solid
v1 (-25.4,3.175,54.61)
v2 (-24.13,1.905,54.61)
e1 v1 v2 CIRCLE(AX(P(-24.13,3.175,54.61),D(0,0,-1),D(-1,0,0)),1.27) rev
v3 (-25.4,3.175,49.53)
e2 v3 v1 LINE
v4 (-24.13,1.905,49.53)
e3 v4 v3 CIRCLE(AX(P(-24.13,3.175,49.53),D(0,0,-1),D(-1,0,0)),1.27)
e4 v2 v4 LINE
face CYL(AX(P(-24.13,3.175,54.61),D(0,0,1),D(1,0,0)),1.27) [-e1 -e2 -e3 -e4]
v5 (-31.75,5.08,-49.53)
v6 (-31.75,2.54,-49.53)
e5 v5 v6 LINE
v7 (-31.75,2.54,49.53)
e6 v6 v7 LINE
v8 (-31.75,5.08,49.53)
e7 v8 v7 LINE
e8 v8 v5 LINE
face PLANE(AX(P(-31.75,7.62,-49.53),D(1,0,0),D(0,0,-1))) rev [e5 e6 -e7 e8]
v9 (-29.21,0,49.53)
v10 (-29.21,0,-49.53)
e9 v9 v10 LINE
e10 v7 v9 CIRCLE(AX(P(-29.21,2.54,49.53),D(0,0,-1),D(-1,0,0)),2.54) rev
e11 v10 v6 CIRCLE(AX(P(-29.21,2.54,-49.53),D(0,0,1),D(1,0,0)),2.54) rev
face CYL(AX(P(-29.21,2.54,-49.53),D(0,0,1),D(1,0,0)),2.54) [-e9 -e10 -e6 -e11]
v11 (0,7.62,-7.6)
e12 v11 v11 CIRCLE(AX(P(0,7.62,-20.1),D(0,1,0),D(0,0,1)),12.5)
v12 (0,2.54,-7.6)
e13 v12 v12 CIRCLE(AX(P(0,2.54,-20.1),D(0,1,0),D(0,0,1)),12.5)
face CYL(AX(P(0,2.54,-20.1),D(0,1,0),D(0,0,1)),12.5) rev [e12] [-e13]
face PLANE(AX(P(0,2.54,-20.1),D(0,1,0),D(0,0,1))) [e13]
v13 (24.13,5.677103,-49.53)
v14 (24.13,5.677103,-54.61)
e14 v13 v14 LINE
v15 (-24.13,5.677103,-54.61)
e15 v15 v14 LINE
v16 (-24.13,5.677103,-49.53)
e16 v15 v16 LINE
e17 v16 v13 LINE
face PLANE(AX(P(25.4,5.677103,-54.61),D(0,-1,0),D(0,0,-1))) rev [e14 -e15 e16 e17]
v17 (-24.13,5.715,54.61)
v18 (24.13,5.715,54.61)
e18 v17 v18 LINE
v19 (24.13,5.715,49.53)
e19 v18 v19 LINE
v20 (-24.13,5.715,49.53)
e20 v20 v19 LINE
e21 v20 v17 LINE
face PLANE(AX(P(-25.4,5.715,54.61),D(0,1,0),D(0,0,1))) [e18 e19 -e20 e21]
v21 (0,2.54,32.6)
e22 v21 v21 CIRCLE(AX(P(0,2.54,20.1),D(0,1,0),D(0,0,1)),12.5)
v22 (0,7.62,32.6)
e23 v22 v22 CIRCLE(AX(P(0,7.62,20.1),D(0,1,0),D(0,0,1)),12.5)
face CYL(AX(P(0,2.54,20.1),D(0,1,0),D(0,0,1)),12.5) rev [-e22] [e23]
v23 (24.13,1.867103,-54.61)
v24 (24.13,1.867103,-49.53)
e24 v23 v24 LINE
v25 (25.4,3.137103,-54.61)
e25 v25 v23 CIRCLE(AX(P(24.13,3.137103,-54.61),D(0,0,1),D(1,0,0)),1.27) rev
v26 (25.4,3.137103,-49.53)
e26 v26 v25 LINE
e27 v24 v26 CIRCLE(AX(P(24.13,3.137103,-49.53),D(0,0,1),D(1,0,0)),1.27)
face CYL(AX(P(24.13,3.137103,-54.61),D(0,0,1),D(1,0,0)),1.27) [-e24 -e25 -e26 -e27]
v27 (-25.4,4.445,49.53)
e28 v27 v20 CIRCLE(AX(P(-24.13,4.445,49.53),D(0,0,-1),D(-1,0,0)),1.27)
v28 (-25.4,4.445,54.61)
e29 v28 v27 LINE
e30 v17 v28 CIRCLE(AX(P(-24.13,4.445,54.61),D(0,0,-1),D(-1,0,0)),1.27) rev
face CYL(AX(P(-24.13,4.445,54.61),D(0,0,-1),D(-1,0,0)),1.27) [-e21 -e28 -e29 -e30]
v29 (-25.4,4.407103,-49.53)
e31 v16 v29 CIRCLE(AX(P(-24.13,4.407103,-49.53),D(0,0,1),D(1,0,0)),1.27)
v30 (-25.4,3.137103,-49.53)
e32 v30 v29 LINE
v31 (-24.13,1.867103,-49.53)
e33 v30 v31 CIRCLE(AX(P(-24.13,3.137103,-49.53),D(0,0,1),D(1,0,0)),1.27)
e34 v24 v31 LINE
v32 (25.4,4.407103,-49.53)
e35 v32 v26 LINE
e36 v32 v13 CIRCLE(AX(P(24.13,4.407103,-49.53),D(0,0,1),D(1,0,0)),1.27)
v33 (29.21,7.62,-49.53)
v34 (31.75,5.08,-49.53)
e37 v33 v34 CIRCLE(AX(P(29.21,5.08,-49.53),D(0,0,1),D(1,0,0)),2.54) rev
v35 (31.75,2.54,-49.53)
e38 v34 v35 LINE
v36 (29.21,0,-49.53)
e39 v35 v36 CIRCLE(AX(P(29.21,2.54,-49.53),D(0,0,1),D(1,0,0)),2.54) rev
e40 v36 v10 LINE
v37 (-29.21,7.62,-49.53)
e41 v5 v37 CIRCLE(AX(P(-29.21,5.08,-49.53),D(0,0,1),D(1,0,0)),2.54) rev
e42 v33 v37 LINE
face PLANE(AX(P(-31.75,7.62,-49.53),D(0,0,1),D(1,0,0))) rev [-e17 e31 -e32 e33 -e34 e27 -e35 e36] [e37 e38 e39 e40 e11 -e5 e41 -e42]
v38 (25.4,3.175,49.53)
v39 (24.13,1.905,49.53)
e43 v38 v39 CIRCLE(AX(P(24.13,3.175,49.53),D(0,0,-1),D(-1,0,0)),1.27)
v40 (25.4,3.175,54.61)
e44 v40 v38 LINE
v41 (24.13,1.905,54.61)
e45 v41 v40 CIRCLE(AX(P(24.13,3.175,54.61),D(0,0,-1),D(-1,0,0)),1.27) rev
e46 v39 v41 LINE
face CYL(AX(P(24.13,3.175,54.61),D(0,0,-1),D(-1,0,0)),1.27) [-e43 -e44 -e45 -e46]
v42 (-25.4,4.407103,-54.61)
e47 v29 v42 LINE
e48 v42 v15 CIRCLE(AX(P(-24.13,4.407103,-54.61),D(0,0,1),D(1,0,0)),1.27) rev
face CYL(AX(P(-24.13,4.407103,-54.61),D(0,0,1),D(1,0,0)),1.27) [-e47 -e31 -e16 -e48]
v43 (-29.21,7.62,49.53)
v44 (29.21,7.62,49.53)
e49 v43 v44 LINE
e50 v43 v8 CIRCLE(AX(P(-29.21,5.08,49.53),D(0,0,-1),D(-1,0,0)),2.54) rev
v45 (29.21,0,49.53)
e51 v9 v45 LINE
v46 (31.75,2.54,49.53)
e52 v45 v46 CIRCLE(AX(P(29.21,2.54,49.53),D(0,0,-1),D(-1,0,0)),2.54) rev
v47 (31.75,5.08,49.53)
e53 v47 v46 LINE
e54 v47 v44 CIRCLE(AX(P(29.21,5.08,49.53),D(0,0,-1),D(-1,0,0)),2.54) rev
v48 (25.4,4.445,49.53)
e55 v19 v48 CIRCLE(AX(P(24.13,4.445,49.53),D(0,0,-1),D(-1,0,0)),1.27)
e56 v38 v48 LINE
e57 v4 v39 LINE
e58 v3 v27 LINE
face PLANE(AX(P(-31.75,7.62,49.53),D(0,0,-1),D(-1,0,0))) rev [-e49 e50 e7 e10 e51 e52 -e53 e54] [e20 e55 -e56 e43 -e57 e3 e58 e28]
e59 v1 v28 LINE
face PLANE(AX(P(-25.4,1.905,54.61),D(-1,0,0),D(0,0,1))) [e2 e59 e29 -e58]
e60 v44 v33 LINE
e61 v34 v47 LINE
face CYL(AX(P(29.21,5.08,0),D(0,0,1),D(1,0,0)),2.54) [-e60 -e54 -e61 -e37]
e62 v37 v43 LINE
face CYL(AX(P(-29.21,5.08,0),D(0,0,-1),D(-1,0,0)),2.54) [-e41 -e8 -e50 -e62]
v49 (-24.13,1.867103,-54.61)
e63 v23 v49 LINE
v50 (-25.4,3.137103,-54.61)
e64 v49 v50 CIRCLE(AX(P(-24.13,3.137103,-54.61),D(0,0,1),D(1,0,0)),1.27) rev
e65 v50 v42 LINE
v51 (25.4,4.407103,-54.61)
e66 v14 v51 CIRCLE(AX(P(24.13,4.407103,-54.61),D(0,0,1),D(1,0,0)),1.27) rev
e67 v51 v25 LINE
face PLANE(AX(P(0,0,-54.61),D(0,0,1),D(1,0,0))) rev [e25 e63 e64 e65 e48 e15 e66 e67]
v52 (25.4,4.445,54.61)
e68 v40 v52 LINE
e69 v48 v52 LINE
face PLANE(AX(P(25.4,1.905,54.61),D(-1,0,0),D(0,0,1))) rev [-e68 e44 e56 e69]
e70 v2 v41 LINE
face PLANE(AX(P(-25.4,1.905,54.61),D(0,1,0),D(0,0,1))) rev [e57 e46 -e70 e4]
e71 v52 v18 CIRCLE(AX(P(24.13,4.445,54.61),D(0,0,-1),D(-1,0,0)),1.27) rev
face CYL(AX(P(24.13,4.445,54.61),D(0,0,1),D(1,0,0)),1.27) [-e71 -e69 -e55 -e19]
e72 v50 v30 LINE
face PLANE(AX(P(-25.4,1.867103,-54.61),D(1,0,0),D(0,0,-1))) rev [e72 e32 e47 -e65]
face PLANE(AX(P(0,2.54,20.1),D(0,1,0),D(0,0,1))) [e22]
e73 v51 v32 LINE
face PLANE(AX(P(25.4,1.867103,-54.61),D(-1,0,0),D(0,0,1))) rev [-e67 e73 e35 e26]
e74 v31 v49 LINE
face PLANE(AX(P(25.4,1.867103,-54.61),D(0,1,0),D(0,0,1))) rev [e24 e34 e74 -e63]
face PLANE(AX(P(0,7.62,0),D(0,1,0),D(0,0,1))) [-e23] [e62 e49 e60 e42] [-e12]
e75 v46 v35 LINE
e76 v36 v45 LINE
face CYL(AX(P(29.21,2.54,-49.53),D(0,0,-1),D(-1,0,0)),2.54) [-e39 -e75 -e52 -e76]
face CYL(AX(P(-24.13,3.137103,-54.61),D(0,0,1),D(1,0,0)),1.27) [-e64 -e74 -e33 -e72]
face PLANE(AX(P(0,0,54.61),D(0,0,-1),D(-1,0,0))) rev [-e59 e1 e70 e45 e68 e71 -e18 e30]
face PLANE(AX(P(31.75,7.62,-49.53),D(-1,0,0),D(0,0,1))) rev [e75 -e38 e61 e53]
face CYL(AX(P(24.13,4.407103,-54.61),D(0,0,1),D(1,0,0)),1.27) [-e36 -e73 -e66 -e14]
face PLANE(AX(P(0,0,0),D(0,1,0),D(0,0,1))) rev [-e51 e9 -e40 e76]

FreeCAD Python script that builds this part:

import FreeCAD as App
import Part
import Sketcher

V = App.Vector
Q = App.Units.Quantity


def edges_at(feature, points):
    """Names of the edges that pass closest to the given points."""
    edges = feature.Shape.Edges
    near = lambda p: min(range(len(edges)), key=lambda i: edges[i].distToShape(Part.Vertex(*p))[0])
    return sorted({f"Edge{near(p) + 1}" for p in points})

doc = App.newDocument("Part")
body = doc.addObject("PartDesign::Body", "Body")

# Sketch on XZ plane
sketch1 = body.newObject("Sketcher::SketchObject", "Sketch")
sketch1.AttachmentSupport = (doc.getObject("XZ_Plane"), [""])
sketch1.MapMode = "FlatFace"
sketch1.addGeometry(Part.LineSegment(V(-32, -50, 0), V(-32, 50, 0)), False)
sketch1.addGeometry(Part.LineSegment(V(-32, 50, 0), V(32, 50, 0)), False)
sketch1.addGeometry(Part.LineSegment(V(32, 50, 0), V(32, -50, 0)), False)
sketch1.addGeometry(Part.LineSegment(V(32, -50, 0), V(-32, -50, 0)), False)
sketch1.addConstraint(Sketcher.Constraint("Coincident", 0, 2, 1, 1))
sketch1.addConstraint(Sketcher.Constraint("Coincident", 1, 2, 2, 1))
sketch1.addConstraint(Sketcher.Constraint("Coincident", 2, 2, 3, 1))
sketch1.addConstraint(Sketcher.Constraint("Coincident", 3, 2, 0, 1))
sketch1.addConstraint(Sketcher.Constraint("Vertical", 0))
sketch1.addConstraint(Sketcher.Constraint("Horizontal", 1))
sketch1.addConstraint(Sketcher.Constraint("Vertical", 2))
sketch1.addConstraint(Sketcher.Constraint("Horizontal", 3))
sketch1.addConstraint(Sketcher.Constraint("Symmetric", 0, 2, 2, 2, -1, 1))
sketch1.addConstraint(Sketcher.Constraint("DistanceX", 1, 1, 1, 2, Q("2.5 in")))
sketch1.addConstraint(Sketcher.Constraint("DistanceY", 0, 1, 0, 2, Q("3.9 in")))
pad1 = body.newObject("PartDesign::Pad", "Pad")
pad1.Profile = sketch1
pad1.Length = Q("0.3 in")
pad1.Reversed = True

# Sketch on XZ plane
sketch2 = body.newObject("Sketcher::SketchObject", "Sketch001")
sketch2.AttachmentSupport = (doc.getObject("XZ_Plane"), [""])
sketch2.MapMode = "FlatFace"
sketch2.AttachmentOffset = App.Placement(V(0, 0, -0.3 * 25.4), App.Rotation())
sketch2.addGeometry(Part.Circle(V(0, 20, 0), V(0, 0, 1), 12), False)
sketch2.addGeometry(Part.Circle(V(0, -20, 0), V(0, 0, 1), 12), False)
sketch2.addConstraint(Sketcher.Constraint("Equal", 0, 1))
sketch2.addConstraint(Sketcher.Constraint("Symmetric", 0, 3, 1, 3, -1, 1))
sketch2.addConstraint(Sketcher.Constraint("PointOnObject", 0, 3, -2))
sketch2.addConstraint(Sketcher.Constraint("Diameter", 0, Q("25 mm")))
sketch2.addConstraint(Sketcher.Constraint("DistanceY", -1, 1, 0, 3, Q("20.1 mm")))
pocket1 = body.newObject("PartDesign::Pocket", "Pocket")
pocket1.Profile = sketch2
pocket1.Length = Q("0.2 in")
pocket1.Reversed = True
doc.recompute()

fillet = body.newObject("PartDesign::Fillet", "Fillet")
fillet.Base = (pocket1, edges_at(pocket1, [
    (-31.75, 7.62, 0),
    (31.75, 7.62, 0),
    (-31.75, 0, 0),
    (31.75, 0, 0),
]))
fillet.Radius = Q("0.1 in")

# Sketch on XY plane
sketch3 = body.newObject("Sketcher::SketchObject", "Sketch002")
sketch3.AttachmentSupport = (doc.getObject("XY_Plane"), [""])
sketch3.MapMode = "FlatFace"
sketch3.AttachmentOffset = App.Placement(V(0, 0, 1.95 * 25.4), App.Rotation())
sketch3.addGeometry(Part.LineSegment(V(-25.4, 5.7, 0), V(-25.4, 1.9, 0)), False)
sketch3.addGeometry(Part.LineSegment(V(-25.4, 1.9, 0), V(25.4, 1.9, 0)), False)
sketch3.addGeometry(Part.LineSegment(V(25.4, 1.9, 0), V(25.4, 5.7, 0)), False)
sketch3.addGeometry(Part.LineSegment(V(25.4, 5.7, 0), V(-25.4, 5.7, 0)), False)
sketch3.addConstraint(Sketcher.Constraint("Coincident", 0, 2, 1, 1))
sketch3.addConstraint(Sketcher.Constraint("Coincident", 1, 2, 2, 1))
sketch3.addConstraint(Sketcher.Constraint("Coincident", 2, 2, 3, 1))
sketch3.addConstraint(Sketcher.Constraint("Coincident", 3, 2, 0, 1))
sketch3.addConstraint(Sketcher.Constraint("Vertical", 0))
sketch3.addConstraint(Sketcher.Constraint("Horizontal", 1))
sketch3.addConstraint(Sketcher.Constraint("Vertical", 2))
sketch3.addConstraint(Sketcher.Constraint("Horizontal", 3))
sketch3.addConstraint(Sketcher.Constraint("DistanceX", 1, 1, 1, 2, Q("2 in")))
sketch3.addConstraint(Sketcher.Constraint("DistanceX", 0, 2, -1, 1, Q("1 in")))
sketch3.addConstraint(Sketcher.Constraint("DistanceY", 0, 2, 0, 1, Q("0.15 in")))
sketch3.addConstraint(Sketcher.Constraint("DistanceY", -1, 1, 0, 2, Q("0.075 in")))
pad2 = body.newObject("PartDesign::Pad", "Pad001")
pad2.Profile = sketch3
pad2.Length = Q("0.2 in")
doc.recompute()

fillet2 = body.newObject("PartDesign::Fillet", "Fillet001")
fillet2.Base = (pad2, edges_at(pad2, [
    (-25.4, 5.715, 52.07),
    (-25.4, 1.905, 52.07),
    (25.4, 1.905, 52.07),
    (25.4, 5.715, 52.07),
]))
fillet2.Radius = Q("0.05 in")

# Sketch on XY plane
sketch4 = body.newObject("Sketcher::SketchObject", "Sketch003")
sketch4.AttachmentSupport = (doc.getObject("XY_Plane"), [""])
sketch4.MapMode = "FlatFace"
sketch4.AttachmentOffset = App.Placement(V(0, 0, -1.95 * 25.4), App.Rotation())
sketch4.addGeometry(Part.LineSegment(V(25.4, 5.7, 0), V(25.4, 1.9, 0)), False)
sketch4.addGeometry(Part.LineSegment(V(25.4, 1.9, 0), V(-25.4, 1.9, 0)), False)
sketch4.addGeometry(Part.LineSegment(V(-25.4, 1.9, 0), V(-25.4, 5.7, 0)), False)
sketch4.addGeometry(Part.LineSegment(V(-25.4, 5.7, 0), V(25.4, 5.7, 0)), False)
sketch4.addConstraint(Sketcher.Constraint("Coincident", 0, 2, 1, 1))
sketch4.addConstraint(Sketcher.Constraint("Coincident", 1, 2, 2, 1))
sketch4.addConstraint(Sketcher.Constraint("Coincident", 2, 2, 3, 1))
sketch4.addConstraint(Sketcher.Constraint("Coincident", 3, 2, 0, 1))
sketch4.addConstraint(Sketcher.Constraint("Vertical", 0))
sketch4.addConstraint(Sketcher.Constraint("Horizontal", 1))
sketch4.addConstraint(Sketcher.Constraint("Vertical", 2))
sketch4.addConstraint(Sketcher.Constraint("Horizontal", 3))
sketch4.addConstraint(Sketcher.Constraint("DistanceX", 1, 2, 1, 1, Q("2 in")))
sketch4.addConstraint(Sketcher.Constraint("DistanceX", -1, 1, 0, 2, Q("1 in")))
sketch4.addConstraint(Sketcher.Constraint("DistanceY", 0, 2, 0, 1, Q("0.15 in")))
sketch4.addConstraint(Sketcher.Constraint("DistanceY", -1, 1, 0, 2, Q("1.867103 mm")))
pad3 = body.newObject("PartDesign::Pad", "Pad002")
pad3.Profile = sketch4
pad3.Length = Q("0.2 in")
pad3.Reversed = True
doc.recompute()

fillet3 = body.newObject("PartDesign::Fillet", "Fillet002")
fillet3.Base = (pad3, edges_at(pad3, [
    (-25.4, 1.867, -52.07),
    (-25.4, 5.677, -52.07),
    (25.4, 5.677, -52.07),
    (25.4, 1.867, -52.07),
]))
fillet3.Radius = Q("0.05 in")

doc.recompute()
